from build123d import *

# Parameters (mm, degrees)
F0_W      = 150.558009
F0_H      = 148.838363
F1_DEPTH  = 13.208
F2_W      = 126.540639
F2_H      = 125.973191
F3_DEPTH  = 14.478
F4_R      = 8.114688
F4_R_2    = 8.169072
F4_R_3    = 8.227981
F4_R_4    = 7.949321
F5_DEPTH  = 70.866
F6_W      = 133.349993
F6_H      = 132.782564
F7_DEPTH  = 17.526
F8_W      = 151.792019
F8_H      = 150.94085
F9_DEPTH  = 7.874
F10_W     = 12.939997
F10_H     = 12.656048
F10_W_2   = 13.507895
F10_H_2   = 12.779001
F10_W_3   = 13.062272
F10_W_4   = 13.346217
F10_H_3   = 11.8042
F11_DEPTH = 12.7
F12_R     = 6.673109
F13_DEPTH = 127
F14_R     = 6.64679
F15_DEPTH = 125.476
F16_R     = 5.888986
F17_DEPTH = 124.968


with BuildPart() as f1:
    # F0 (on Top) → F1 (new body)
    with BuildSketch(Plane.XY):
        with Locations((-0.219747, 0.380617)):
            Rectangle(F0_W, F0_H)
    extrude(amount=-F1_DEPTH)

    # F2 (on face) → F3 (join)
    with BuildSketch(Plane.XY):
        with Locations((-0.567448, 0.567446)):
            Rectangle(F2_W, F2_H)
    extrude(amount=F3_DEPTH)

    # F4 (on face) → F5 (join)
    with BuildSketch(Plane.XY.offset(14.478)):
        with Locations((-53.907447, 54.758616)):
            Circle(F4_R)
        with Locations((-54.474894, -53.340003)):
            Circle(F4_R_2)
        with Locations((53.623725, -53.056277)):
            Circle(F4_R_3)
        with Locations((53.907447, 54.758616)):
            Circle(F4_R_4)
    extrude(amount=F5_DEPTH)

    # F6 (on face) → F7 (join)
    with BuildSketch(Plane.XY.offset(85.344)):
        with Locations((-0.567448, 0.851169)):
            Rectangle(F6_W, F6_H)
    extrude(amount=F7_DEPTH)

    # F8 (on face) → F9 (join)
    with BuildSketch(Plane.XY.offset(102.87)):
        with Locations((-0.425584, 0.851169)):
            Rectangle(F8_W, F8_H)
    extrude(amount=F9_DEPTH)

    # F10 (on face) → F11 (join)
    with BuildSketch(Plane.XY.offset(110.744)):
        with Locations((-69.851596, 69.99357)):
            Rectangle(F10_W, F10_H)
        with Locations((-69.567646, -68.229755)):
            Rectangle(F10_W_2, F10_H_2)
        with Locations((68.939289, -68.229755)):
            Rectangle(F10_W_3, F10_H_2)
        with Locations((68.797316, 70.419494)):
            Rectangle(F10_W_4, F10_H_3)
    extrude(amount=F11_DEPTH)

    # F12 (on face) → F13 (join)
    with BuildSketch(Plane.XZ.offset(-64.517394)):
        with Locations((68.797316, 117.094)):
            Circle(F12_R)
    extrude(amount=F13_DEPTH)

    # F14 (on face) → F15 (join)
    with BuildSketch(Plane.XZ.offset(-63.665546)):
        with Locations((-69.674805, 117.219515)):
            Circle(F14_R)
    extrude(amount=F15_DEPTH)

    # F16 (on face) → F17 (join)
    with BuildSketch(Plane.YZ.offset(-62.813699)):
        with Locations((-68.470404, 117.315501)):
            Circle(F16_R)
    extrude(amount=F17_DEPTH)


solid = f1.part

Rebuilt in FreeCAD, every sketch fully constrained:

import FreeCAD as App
import Part
import Sketcher
from FreeCAD import Vector
Q = App.Units.Quantity


def add_polygon(sketch, points):
    """Adds a closed chain of lines whose ends are joined by coincident constraints."""
    first, n = sketch.GeometryCount, len(points)
    for a, b in zip(points, points[1:] + points[:1]):
        sketch.addGeometry(Part.LineSegment(App.Vector(*a, 0), App.Vector(*b, 0)), False)
    for i in range(n):
        sketch.addConstraint(Sketcher.Constraint("Coincident", first + i, 2, first + (i + 1) % n, 1))

doc = App.newDocument("Part")
body = doc.addObject("PartDesign::Body", "Body")

sketch1 = body.newObject("Sketcher::SketchObject", "Sketch")
sketch1.AttachmentSupport = (doc.getObject("XY_Plane"), [""])
sketch1.MapMode = "FlatFace"
add_polygon(sketch1, [(-75, 75), (-75, -74), (75, -74), (75, 75)])
sketch1.addConstraint([
    Sketcher.Constraint("Vertical", 0),
    Sketcher.Constraint("Horizontal", 1),
    Sketcher.Constraint("Vertical", 2),
    Sketcher.Constraint("Horizontal", 3),
    Sketcher.Constraint("DistanceX", 1, 1, 1, 2, Q("150.558009 mm")),
    Sketcher.Constraint("DistanceY", -1, 1, 2, 2, Q("74.799798 mm")),
    Sketcher.Constraint("DistanceY", 0, 2, 0, 1, Q("148.838363 mm")),
    Sketcher.Constraint("DistanceX", 0, 2, -1, 1, Q("75.498751 mm")),
])
pad1 = body.newObject("PartDesign::Pad", "Pad")
pad1.Profile = sketch1
pad1.Length = Q("0.52 in")
pad1.Reversed = True

sketch2 = body.newObject("Sketcher::SketchObject", "Sketch001")
sketch2.AttachmentSupport = (doc.getObject("XY_Plane"), [""])
sketch2.MapMode = "FlatFace"
add_polygon(sketch2, [(-64, 64), (-64, -62), (63, -62), (63, 64)])
sketch2.addConstraint([
    Sketcher.Constraint("Vertical", 0),
    Sketcher.Constraint("Horizontal", 1),
    Sketcher.Constraint("Vertical", 2),
    Sketcher.Constraint("Horizontal", 3),
    Sketcher.Constraint("DistanceX", 1, 1, 1, 2, Q("126.540639 mm")),
    Sketcher.Constraint("DistanceY", 0, 2, 0, 1, Q("125.973191 mm")),
    Sketcher.Constraint("DistanceY", 0, 2, -1, 1, Q("62.41915 mm")),
    Sketcher.Constraint("DistanceX", -1, 1, 1, 2, Q("62.702872 mm")),
])
pad2 = body.newObject("PartDesign::Pad", "Pad001")
pad2.Profile = sketch2
pad2.Length = Q("0.57 in")

sketch3 = body.newObject("Sketcher::SketchObject", "Sketch002")
sketch3.AttachmentSupport = (doc.getObject("XY_Plane"), [""])
sketch3.MapMode = "FlatFace"
sketch3.AttachmentOffset = App.Placement(Vector(0, 0, 0.57 * 25.4), App.Rotation())
sketch3.addGeometry([
    Part.Circle(Vector(-54, 55, 0), Vector(0, 0, 1), 8),
    Part.Circle(Vector(-54, -53, 0), Vector(0, 0, 1), 8),
    Part.Circle(Vector(54, -53, 0), Vector(0, 0, 1), 8),
    Part.Circle(Vector(54, 55, 0), Vector(0, 0, 1), 8),
], False)
sketch3.addConstraint([
    Sketcher.Constraint("Symmetric", 0, 3, 3, 3, -2),
    Sketcher.Constraint("DistanceY", 1, 3, -1, 1, Q("2.1000001 in")),
    Sketcher.Constraint("Diameter", 2, Q("16.455962 mm")),
    Sketcher.Constraint("Diameter", 0, Q("16.229376 mm")),
    Sketcher.Constraint("Diameter", 1, Q("16.338144 mm")),
    Sketcher.Constraint("Diameter", 3, Q("15.898642 mm")),
    Sketcher.Constraint("DistanceY", 1, 3, 0, 3, Q("108.098619 mm")),
    Sketcher.Constraint("DistanceX", 1, 3, 2, 3, Q("108.098619 mm")),
    Sketcher.Constraint("DistanceX", 0, 3, 2, 3, Q("107.531172 mm")),
    Sketcher.Constraint("DistanceX", 2, 3, 3, 3, Q("0.283722 mm")),
    Sketcher.Constraint("DistanceY", 2, 3, -1, 1, Q("53.056277 mm")),
])
pad3 = body.newObject("PartDesign::Pad", "Pad002")
pad3.Profile = sketch3
pad3.Length = Q("2.79 in")

sketch4 = body.newObject("Sketcher::SketchObject", "Sketch003")
sketch4.AttachmentSupport = (doc.getObject("XY_Plane"), [""])
sketch4.MapMode = "FlatFace"
sketch4.AttachmentOffset = App.Placement(Vector(0, 0, 3.36 * 25.4), App.Rotation())
add_polygon(sketch4, [(-67, 67), (-67, -66), (66, -66), (66, 67)])
sketch4.addConstraint([
    Sketcher.Constraint("Vertical", 0),
    Sketcher.Constraint("Horizontal", 1),
    Sketcher.Constraint("Vertical", 2),
    Sketcher.Constraint("Horizontal", 3),
    Sketcher.Constraint("DistanceX", 1, 1, 1, 2, Q("133.349993 mm")),
    Sketcher.Constraint("DistanceY", 0, 2, 0, 1, Q("132.782564 mm")),
    Sketcher.Constraint("DistanceX", -1, 1, 1, 2, Q("66.107548 mm")),
    Sketcher.Constraint("DistanceY", -1, 1, 2, 2, Q("67.242451 mm")),
])
pad4 = body.newObject("PartDesign::Pad", "Pad003")
pad4.Profile = sketch4
pad4.Length = Q("0.69 in")

sketch5 = body.newObject("Sketcher::SketchObject", "Sketch004")
sketch5.AttachmentSupport = (doc.getObject("XY_Plane"), [""])
sketch5.MapMode = "FlatFace"
sketch5.AttachmentOffset = App.Placement(Vector(0, 0, 4.05 * 25.4), App.Rotation())
add_polygon(sketch5, [(-76, 76), (-76, -75), (75, -75), (75, 76)])
sketch5.addConstraint([
    Sketcher.Constraint("Vertical", 0),
    Sketcher.Constraint("Horizontal", 1),
    Sketcher.Constraint("Vertical", 2),
    Sketcher.Constraint("Horizontal", 3),
    Sketcher.Constraint("DistanceX", 1, 1, 1, 2, Q("151.792019 mm")),
    Sketcher.Constraint("DistanceY", 0, 2, 0, 1, Q("150.94085 mm")),
    Sketcher.Constraint("DistanceX", 0, 2, -1, 1, Q("76.321594 mm")),
    Sketcher.Constraint("DistanceY", 0, 2, -1, 1, Q("74.619256 mm")),
])
pad5 = body.newObject("PartDesign::Pad", "Pad004")
pad5.Profile = sketch5
pad5.Length = Q("0.31 in")

sketch6 = body.newObject("Sketcher::SketchObject", "Sketch005")
sketch6.AttachmentSupport = (doc.getObject("XY_Plane"), [""])
sketch6.MapMode = "FlatFace"
sketch6.AttachmentOffset = App.Placement(Vector(0, 0, 4.36 * 25.4), App.Rotation())
add_polygon(sketch6, [(-76, 76), (-76, 64), (-63, 64), (-63, 76)])
add_polygon(sketch6, [(-76, -62), (-76, -75), (-63, -75), (-63, -62)])
add_polygon(sketch6, [(62, -62), (62, -75), (75, -75), (75, -62)])
add_polygon(sketch6, [(62, 76), (62, 65), (75, 65), (75, 76)])
sketch6.addConstraint([
    Sketcher.Constraint("Vertical", 0),
    Sketcher.Constraint("Horizontal", 1),
    Sketcher.Constraint("Vertical", 2),
    Sketcher.Constraint("Horizontal", 3),
    Sketcher.Constraint("Vertical", 4),
    Sketcher.Constraint("Horizontal", 5),
    Sketcher.Constraint("Vertical", 6),
    Sketcher.Constraint("Horizontal", 7),
    Sketcher.Constraint("Vertical", 8),
    Sketcher.Constraint("Horizontal", 9),
    Sketcher.Constraint("Vertical", 10),
    Sketcher.Constraint("Horizontal", 11),
    Sketcher.Constraint("Vertical", 12),
    Sketcher.Constraint("Horizontal", 13),
    Sketcher.Constraint("Vertical", 14),
    Sketcher.Constraint("Horizontal", 15),
    Sketcher.Constraint("Horizontal", 5, 2, 8, 2),
    Sketcher.Constraint("Horizontal", 7, 2, 10, 2),
    Sketcher.Constraint("Horizontal", 3, 2, 14, 2),
    Sketcher.Constraint("Vertical", 3, 2, 4, 2),
    Sketcher.Constraint("Vertical", 10, 2, 13, 2),
    Sketcher.Constraint("DistanceY", 4, 2, 4, 1, Q("12.779001 mm")),
    Sketcher.Constraint("DistanceY", 12, 2, 12, 1, Q("11.8042 mm")),
    Sketcher.Constraint("DistanceY", 0, 2, 0, 1, Q("12.656048 mm")),
    Sketcher.Constraint("DistanceX", 5, 2, -1, 1, Q("62.813699 mm")),
    Sketcher.Constraint("DistanceY", 4, 2, 0, 2, Q("138.284801 mm")),
    Sketcher.Constraint("DistanceX", 1, 2, 5, 2, Q("0.567899 mm")),
    Sketcher.Constraint("DistanceX", 1, 1, 1, 2, Q("12.939997 mm")),
    Sketcher.Constraint("DistanceX", 9, 1, 9, 2, Q("13.062272 mm")),
    Sketcher.Constraint("DistanceX", 13, 1, 13, 2, Q("13.346217 mm")),
    Sketcher.Constraint("DistanceX", 5, 2, 8, 2, Q("125.221851 mm")),
    Sketcher.Constraint("DistanceY", -1, 1, 0, 2, Q("63.665546 mm")),
])
pad6 = body.newObject("PartDesign::Pad", "Pad005")
pad6.Profile = sketch6
pad6.Length = Q("0.5 in")

sketch7 = body.newObject("Sketcher::SketchObject", "Sketch006")
sketch7.AttachmentSupport = (doc.getObject("XZ_Plane"), [""])
sketch7.MapMode = "FlatFace"
sketch7.AttachmentOffset = App.Placement(Vector(0, 0, -64.517394), App.Rotation())
sketch7.addGeometry(Part.Circle(Vector(69, 117, 0), Vector(0, 0, 1), 7), False)
sketch7.addConstraint([
    Sketcher.Constraint("DistanceY", -1, 1, 0, 3, Q("4.61 in")),
    Sketcher.Constraint("Diameter", 0, Q("13.346218 mm")),
    Sketcher.Constraint("DistanceX", -1, 1, 0, 3, Q("68.797316 mm")),
])
pad7 = body.newObject("PartDesign::Pad", "Pad006")
pad7.Profile = sketch7
pad7.Length = Q("5 in")

sketch8 = body.newObject("Sketcher::SketchObject", "Sketch007")
sketch8.AttachmentSupport = (doc.getObject("XZ_Plane"), [""])
sketch8.MapMode = "FlatFace"
sketch8.AttachmentOffset = App.Placement(Vector(0, 0, -63.665546), App.Rotation())
sketch8.addGeometry(Part.Circle(Vector(-70, 117, 0), Vector(0, 0, 1), 7), False)
sketch8.addConstraint([
    Sketcher.Constraint("Diameter", 0, Q("13.29358 mm")),
    Sketcher.Constraint("DistanceX", 0, 3, -1, 1, Q("69.674805 mm")),
    Sketcher.Constraint("DistanceY", -1, 1, 0, 3, Q("117.219515 mm")),
])
pad8 = body.newObject("PartDesign::Pad", "Pad007")
pad8.Profile = sketch8
pad8.Length = Q("4.94 in")

sketch9 = body.newObject("Sketcher::SketchObject", "Sketch008")
sketch9.AttachmentSupport = (doc.getObject("YZ_Plane"), [""])
sketch9.MapMode = "FlatFace"
sketch9.AttachmentOffset = App.Placement(Vector(0, 0, -62.813699), App.Rotation())
sketch9.addGeometry(Part.Circle(Vector(-68, 117, 0), Vector(0, 0, 1), 6), False)
sketch9.addConstraint([
    Sketcher.Constraint("Diameter", 0, Q("11.777972 mm")),
    Sketcher.Constraint("DistanceY", -1, 1, 0, 3, Q("117.315501 mm")),
    Sketcher.Constraint("DistanceX", 0, 3, -1, 1, Q("68.470404 mm")),
])
pad9 = body.newObject("PartDesign::Pad", "Pad008")
pad9.Profile = sketch9
pad9.Length = Q("4.92 in")

doc.recompute()
